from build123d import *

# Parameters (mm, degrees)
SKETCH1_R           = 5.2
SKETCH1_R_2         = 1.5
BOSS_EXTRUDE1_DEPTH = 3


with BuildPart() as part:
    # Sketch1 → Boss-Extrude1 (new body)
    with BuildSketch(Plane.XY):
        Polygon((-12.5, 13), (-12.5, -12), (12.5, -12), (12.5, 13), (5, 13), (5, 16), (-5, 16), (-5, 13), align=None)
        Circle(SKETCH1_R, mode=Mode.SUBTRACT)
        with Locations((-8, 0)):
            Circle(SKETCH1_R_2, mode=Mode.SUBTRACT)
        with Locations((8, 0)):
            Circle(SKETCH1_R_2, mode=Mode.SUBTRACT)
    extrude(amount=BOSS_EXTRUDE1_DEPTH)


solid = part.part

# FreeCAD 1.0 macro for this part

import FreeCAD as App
import Part
import Sketcher

V = App.Vector
Q = App.Units.Quantity


def add_polygon(sketch, points):
    """Adds a closed chain of lines whose ends are joined by coincident constraints."""
    first, n = sketch.GeometryCount, len(points)
    for a, b in zip(points, points[1:] + points[:1]):
        sketch.addGeometry(Part.LineSegment(App.Vector(*a, 0), App.Vector(*b, 0)), False)
    for i in range(n):
        sketch.addConstraint(Sketcher.Constraint("Coincident", first + i, 2, first + (i + 1) % n, 1))

doc = App.newDocument("Part")
body = doc.addObject("PartDesign::Body", "Body")

# Sketch on XY plane
sketch1 = doc.addObject("Sketcher::SketchObject", "Sketch")
body.addObject(sketch1)
sketch1.AttachmentSupport = (doc.XY_Plane, [""])
sketch1.MapMode = "FlatFace"
add_polygon(sketch1, [(-12.5, 13), (-12.5, -12), (12.5, -12), (12.5, 13), (5, 13), (5, 16), (-5, 16), (-5, 13)])  # lines 0-7
sketch1.addGeometry(Part.Circle(V(-8, 0, 0), V(0, 0, 1), 1.5), False)  # 8
sketch1.addGeometry(Part.Circle(V(0, 0, 0), V(0, 0, 1), 5.2), False)  # 9
sketch1.addGeometry(Part.Circle(V(8, 0, 0), V(0, 0, 1), 1.5), False)  # 10
sketch1.addConstraint([
    Sketcher.Constraint("Vertical", 0),
    Sketcher.Constraint("Horizontal", 1),
    Sketcher.Constraint("Vertical", 2),
    Sketcher.Constraint("Horizontal", 3),
    Sketcher.Constraint("Vertical", 4),
    Sketcher.Constraint("Horizontal", 5),
    Sketcher.Constraint("Vertical", 6),
    Sketcher.Constraint("Horizontal", 7),
    Sketcher.Constraint("Coincident", 9, 3, -1, 1),
    Sketcher.Constraint("Equal", 8, 10),
    Sketcher.Constraint("Symmetric", 8, 3, 10, 3, -1, 1),
    Sketcher.Constraint("Symmetric", 3, 2, 6, 2, -2),
    Sketcher.Constraint("PointOnObject", 8, 3, -1),
    Sketcher.Constraint("Equal", 3, 7),
    Sketcher.Constraint("Equal", 1, 0),
    Sketcher.Constraint("Diameter", 8, Q("3 mm")),
    Sketcher.Constraint("Diameter", 9, Q("10.4 mm")),
    Sketcher.Constraint("DistanceX", 1, 1, 1, 2, Q("25 mm")),
    Sketcher.Constraint("DistanceX", 5, 2, 5, 1, Q("10 mm")),
    Sketcher.Constraint("DistanceY", 4, 1, 4, 2, Q("3 mm")),
    Sketcher.Constraint("DistanceX", 8, 3, -1, 1, Q("8 mm")),
    Sketcher.Constraint("DistanceY", 0, 2, -1, 1, Q("12 mm")),
])
pad1 = doc.addObject("PartDesign::Pad", "Pad")
body.addObject(pad1)
pad1.Profile = sketch1
pad1.Length = 3

doc.recompute()
